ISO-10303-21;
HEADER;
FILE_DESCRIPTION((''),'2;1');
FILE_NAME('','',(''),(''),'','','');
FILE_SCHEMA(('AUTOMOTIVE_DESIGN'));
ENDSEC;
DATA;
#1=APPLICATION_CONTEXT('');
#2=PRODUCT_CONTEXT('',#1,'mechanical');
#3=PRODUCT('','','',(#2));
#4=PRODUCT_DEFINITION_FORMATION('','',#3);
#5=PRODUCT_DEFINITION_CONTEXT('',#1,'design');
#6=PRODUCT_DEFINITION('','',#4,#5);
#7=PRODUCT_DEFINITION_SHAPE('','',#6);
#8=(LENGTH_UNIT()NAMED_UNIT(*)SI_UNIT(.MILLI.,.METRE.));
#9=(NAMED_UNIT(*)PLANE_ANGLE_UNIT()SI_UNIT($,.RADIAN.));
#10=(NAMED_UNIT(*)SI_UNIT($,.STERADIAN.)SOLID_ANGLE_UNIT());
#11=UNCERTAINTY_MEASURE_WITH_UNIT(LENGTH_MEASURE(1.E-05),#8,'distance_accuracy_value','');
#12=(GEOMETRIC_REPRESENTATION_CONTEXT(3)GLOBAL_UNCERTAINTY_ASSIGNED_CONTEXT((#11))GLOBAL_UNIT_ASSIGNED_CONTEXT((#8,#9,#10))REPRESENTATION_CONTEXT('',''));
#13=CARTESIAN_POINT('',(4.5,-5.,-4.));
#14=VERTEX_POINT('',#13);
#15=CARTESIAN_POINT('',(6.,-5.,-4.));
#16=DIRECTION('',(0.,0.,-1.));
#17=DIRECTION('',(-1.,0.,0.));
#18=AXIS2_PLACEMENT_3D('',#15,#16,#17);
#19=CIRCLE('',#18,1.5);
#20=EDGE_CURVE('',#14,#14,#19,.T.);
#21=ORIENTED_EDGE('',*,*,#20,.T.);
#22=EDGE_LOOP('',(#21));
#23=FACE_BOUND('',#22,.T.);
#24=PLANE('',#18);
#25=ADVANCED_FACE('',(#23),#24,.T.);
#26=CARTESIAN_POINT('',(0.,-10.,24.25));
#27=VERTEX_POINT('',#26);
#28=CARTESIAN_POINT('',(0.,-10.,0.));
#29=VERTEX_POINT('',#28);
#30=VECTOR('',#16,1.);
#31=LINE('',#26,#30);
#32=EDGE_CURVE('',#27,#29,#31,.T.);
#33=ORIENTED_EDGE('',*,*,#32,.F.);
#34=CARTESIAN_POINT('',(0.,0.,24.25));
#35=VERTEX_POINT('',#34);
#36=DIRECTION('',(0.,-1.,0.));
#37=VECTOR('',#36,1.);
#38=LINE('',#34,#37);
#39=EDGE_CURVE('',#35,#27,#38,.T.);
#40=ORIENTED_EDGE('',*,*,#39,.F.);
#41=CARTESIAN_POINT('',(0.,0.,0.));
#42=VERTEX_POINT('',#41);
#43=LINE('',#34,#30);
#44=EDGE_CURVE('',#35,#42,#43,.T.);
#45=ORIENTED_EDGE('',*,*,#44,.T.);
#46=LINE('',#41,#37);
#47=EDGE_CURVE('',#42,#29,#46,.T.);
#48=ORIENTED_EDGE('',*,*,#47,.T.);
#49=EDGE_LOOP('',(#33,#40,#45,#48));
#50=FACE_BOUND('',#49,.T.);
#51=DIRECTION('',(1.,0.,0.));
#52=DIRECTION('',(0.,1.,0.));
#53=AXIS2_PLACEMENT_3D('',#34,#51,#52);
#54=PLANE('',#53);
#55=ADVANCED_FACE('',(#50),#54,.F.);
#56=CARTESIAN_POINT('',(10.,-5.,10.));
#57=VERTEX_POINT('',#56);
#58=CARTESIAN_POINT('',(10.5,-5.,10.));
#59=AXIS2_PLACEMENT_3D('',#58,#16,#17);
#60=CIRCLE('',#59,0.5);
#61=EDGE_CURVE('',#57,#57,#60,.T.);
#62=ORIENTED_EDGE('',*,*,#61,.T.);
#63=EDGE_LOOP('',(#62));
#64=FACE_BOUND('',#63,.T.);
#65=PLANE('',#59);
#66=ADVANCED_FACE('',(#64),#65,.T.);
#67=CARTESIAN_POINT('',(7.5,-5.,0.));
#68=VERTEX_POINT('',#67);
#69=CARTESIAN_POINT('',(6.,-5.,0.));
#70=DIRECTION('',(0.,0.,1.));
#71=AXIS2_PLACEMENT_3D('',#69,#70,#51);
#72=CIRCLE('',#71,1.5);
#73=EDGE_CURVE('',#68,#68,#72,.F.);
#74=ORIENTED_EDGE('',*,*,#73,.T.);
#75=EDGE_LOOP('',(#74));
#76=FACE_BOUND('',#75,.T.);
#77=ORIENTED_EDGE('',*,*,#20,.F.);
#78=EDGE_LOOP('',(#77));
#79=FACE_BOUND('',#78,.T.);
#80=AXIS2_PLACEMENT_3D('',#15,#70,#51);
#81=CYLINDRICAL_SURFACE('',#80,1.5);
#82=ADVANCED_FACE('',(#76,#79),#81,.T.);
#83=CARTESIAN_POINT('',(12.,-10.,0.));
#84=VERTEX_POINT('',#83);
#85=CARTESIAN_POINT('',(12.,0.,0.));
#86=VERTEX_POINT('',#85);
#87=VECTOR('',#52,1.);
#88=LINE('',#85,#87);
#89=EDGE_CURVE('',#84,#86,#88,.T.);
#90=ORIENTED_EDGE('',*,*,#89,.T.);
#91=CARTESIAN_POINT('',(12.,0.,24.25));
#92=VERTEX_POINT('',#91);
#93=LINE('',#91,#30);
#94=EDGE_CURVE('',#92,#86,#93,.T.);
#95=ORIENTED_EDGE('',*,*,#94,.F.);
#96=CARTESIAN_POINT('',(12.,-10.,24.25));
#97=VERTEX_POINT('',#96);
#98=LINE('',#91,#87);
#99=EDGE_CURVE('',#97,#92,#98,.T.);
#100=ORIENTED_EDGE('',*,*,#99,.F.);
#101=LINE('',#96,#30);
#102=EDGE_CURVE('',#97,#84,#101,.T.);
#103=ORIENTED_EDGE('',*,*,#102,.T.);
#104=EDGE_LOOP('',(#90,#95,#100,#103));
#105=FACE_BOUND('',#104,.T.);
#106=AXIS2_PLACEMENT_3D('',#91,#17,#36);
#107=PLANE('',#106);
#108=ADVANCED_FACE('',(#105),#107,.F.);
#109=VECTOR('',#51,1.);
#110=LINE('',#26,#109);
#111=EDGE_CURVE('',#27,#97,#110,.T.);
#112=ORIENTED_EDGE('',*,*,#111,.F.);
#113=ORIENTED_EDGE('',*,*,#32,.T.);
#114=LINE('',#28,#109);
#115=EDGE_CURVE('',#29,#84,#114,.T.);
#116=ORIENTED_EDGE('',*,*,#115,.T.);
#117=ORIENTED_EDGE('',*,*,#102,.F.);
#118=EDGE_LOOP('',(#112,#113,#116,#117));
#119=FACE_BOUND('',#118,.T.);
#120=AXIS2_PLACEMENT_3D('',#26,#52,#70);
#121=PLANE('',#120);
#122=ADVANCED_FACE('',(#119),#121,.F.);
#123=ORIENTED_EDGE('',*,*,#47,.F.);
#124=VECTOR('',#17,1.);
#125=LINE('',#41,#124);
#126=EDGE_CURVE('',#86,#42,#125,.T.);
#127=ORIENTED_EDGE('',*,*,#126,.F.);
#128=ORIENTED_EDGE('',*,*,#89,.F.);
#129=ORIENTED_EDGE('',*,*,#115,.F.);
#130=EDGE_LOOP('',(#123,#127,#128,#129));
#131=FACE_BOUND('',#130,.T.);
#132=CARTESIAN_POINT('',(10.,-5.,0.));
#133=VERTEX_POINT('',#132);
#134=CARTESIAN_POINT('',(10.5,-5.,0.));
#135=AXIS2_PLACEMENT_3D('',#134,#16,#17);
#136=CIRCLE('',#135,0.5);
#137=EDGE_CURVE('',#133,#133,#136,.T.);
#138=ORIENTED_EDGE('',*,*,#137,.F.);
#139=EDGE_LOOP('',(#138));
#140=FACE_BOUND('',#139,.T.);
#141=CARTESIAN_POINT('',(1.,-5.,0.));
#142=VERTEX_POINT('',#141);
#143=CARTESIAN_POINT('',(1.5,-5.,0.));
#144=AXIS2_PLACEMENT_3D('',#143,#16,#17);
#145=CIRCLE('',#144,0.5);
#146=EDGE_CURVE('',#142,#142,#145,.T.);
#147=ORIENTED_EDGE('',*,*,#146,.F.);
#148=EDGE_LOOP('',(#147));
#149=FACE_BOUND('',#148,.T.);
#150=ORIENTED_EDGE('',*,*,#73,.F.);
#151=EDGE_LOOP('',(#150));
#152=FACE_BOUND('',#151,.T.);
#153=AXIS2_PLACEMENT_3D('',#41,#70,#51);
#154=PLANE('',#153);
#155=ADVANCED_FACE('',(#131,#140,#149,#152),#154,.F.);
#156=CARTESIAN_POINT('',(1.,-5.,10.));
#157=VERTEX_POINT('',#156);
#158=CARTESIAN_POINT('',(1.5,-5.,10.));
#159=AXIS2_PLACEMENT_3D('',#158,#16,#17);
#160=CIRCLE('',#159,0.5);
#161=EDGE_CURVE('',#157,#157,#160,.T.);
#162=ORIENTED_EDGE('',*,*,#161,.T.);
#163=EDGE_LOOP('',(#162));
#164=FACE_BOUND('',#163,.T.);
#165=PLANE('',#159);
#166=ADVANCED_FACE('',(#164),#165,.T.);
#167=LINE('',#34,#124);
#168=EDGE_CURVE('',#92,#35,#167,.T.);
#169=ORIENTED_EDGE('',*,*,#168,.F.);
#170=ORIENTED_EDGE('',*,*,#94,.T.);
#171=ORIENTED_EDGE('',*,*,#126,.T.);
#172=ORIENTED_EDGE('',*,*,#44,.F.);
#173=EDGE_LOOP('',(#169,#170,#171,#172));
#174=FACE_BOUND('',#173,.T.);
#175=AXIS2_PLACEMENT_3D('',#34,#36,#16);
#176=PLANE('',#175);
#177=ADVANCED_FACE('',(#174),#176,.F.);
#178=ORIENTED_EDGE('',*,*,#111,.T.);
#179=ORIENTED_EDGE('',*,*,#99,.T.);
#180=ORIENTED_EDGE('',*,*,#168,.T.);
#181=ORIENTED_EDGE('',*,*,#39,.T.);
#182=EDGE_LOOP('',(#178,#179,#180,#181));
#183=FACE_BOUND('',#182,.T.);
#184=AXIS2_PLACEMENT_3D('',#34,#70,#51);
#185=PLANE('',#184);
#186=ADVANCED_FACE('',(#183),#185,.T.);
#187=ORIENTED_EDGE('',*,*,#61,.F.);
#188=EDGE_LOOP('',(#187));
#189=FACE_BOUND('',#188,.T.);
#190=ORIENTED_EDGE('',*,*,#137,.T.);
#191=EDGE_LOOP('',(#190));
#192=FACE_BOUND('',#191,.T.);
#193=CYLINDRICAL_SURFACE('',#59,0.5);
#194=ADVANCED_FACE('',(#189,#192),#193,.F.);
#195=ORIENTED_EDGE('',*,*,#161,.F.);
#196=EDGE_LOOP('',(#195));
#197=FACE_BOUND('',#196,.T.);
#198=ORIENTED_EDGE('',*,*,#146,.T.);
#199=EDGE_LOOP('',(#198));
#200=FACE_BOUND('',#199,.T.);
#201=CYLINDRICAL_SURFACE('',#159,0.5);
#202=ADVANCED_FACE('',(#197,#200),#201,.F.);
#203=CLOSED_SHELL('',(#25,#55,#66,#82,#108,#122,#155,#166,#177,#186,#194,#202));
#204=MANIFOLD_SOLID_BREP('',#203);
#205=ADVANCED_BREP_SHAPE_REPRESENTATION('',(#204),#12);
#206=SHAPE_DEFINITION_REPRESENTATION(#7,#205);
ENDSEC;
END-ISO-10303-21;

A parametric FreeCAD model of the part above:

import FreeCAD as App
import Part
import Sketcher

V = App.Vector
Q = App.Units.Quantity


def add_polygon(sketch, points):
    """Adds a closed chain of lines whose ends are joined by coincident constraints."""
    first, n = sketch.GeometryCount, len(points)
    for a, b in zip(points, points[1:] + points[:1]):
        sketch.addGeometry(Part.LineSegment(App.Vector(*a, 0), App.Vector(*b, 0)), False)
    for i in range(n):
        sketch.addConstraint(Sketcher.Constraint("Coincident", first + i, 2, first + (i + 1) % n, 1))

doc = App.newDocument("Part")
body = doc.addObject("PartDesign::Body", "Body")

# Sketch on XY plane
sketch1 = body.newObject("Sketcher::SketchObject", "Sketch")
sketch1.AttachmentSupport = (doc.getObject("XY_Plane"), [""])
sketch1.MapMode = "FlatFace"
add_polygon(sketch1, [(0, 0), (0, -10), (12, -10), (12, 0)])  # lines 0-3
sketch1.addConstraint([
    Sketcher.Constraint("Vertical", 0),
    Sketcher.Constraint("Horizontal", 1),
    Sketcher.Constraint("Vertical", 2),
    Sketcher.Constraint("Horizontal", 3),
    Sketcher.Constraint("Coincident", 3, 2, -1, 1),
    Sketcher.Constraint("DistanceX", 1, 1, 1, 2, Q("12 mm")),
    Sketcher.Constraint("DistanceY", 0, 2, 0, 1, Q("10 mm")),
])
pad1 = body.newObject("PartDesign::Pad", "Pad")
pad1.Profile = sketch1
pad1.Length = 24.25

# Sketch on XY plane
sketch2 = body.newObject("Sketcher::SketchObject", "Sketch001")
sketch2.AttachmentSupport = (doc.getObject("XY_Plane"), [""])
sketch2.MapMode = "FlatFace"
sketch2.addGeometry([
    Part.Circle(V(10.5, -5, 0), V(0, 0, 1), 0.5),
    Part.Circle(V(1.5, -5, 0), V(0, 0, 1), 0.5),
], False)
sketch2.addConstraint([
    Sketcher.Constraint("Equal", 0, 1),
    Sketcher.Constraint("Horizontal", 0, 3, 1, 3),
    Sketcher.Constraint("Diameter", 0, Q("1 mm")),
    Sketcher.Constraint("DistanceY", 0, 3, -1, 1, Q("5 mm")),
    Sketcher.Constraint("DistanceX", 1, 3, 0, 3, Q("9 mm")),
    Sketcher.Constraint("DistanceX", -1, 1, 0, 3, Q("10.5 mm")),
])
pocket1 = body.newObject("PartDesign::Pocket", "Pocket")
pocket1.Profile = sketch2
pocket1.Length = 10
pocket1.Reversed = True

# Sketch on XY plane
sketch3 = body.newObject("Sketcher::SketchObject", "Sketch002")
sketch3.AttachmentSupport = (doc.getObject("XY_Plane"), [""])
sketch3.MapMode = "FlatFace"
sketch3.addGeometry(Part.Circle(V(6, -5, 0), V(0, 0, 1), 1.5), False)
sketch3.addConstraint([
    Sketcher.Constraint("Diameter", 0, Q("3 mm")),
    Sketcher.Constraint("DistanceX", -1, 1, 0, 3, Q("6 mm")),
    Sketcher.Constraint("DistanceY", 0, 3, -1, 1, Q("5 mm")),
])
pad2 = body.newObject("PartDesign::Pad", "Pad001")
pad2.Profile = sketch3
pad2.Length = 4
pad2.Reversed = True

doc.recompute()
